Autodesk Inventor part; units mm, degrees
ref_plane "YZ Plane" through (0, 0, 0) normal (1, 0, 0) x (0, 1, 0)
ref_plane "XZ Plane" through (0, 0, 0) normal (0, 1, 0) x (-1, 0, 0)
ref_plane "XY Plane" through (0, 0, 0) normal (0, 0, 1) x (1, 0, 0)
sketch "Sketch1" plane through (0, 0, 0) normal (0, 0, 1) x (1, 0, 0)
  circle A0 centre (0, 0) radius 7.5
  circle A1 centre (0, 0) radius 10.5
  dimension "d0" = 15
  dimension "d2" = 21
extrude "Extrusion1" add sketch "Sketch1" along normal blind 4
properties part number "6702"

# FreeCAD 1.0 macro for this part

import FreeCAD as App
import Part
import Sketcher
Q = App.Units.Quantity

doc = App.newDocument("Part")
body = doc.addObject("PartDesign::Body", "Body")

sketch1 = body.newObject("Sketcher::SketchObject", "Sketch")
sketch1.AttachmentSupport = (doc.getObject("XY_Plane"), [""])
sketch1.MapMode = "FlatFace"
sketch1.addGeometry([
    Part.Circle(App.Vector(0, 0, 0), App.Vector(0, 0, 1), 10.5),
    Part.Circle(App.Vector(0, 0, 0), App.Vector(0, 0, 1), 7.5),
], False)
sketch1.addConstraint([
    Sketcher.Constraint("Coincident", 0, 3, -1, 1),
    Sketcher.Constraint("Coincident", 1, 3, -1, 1),
    Sketcher.Constraint("Diameter", 0, Q("21 mm")),
    Sketcher.Constraint("Diameter", 1, Q("15 mm")),
])
pad1 = body.newObject("PartDesign::Pad", "Pad")
pad1.Profile = sketch1
pad1.Length = 4

doc.recompute()
